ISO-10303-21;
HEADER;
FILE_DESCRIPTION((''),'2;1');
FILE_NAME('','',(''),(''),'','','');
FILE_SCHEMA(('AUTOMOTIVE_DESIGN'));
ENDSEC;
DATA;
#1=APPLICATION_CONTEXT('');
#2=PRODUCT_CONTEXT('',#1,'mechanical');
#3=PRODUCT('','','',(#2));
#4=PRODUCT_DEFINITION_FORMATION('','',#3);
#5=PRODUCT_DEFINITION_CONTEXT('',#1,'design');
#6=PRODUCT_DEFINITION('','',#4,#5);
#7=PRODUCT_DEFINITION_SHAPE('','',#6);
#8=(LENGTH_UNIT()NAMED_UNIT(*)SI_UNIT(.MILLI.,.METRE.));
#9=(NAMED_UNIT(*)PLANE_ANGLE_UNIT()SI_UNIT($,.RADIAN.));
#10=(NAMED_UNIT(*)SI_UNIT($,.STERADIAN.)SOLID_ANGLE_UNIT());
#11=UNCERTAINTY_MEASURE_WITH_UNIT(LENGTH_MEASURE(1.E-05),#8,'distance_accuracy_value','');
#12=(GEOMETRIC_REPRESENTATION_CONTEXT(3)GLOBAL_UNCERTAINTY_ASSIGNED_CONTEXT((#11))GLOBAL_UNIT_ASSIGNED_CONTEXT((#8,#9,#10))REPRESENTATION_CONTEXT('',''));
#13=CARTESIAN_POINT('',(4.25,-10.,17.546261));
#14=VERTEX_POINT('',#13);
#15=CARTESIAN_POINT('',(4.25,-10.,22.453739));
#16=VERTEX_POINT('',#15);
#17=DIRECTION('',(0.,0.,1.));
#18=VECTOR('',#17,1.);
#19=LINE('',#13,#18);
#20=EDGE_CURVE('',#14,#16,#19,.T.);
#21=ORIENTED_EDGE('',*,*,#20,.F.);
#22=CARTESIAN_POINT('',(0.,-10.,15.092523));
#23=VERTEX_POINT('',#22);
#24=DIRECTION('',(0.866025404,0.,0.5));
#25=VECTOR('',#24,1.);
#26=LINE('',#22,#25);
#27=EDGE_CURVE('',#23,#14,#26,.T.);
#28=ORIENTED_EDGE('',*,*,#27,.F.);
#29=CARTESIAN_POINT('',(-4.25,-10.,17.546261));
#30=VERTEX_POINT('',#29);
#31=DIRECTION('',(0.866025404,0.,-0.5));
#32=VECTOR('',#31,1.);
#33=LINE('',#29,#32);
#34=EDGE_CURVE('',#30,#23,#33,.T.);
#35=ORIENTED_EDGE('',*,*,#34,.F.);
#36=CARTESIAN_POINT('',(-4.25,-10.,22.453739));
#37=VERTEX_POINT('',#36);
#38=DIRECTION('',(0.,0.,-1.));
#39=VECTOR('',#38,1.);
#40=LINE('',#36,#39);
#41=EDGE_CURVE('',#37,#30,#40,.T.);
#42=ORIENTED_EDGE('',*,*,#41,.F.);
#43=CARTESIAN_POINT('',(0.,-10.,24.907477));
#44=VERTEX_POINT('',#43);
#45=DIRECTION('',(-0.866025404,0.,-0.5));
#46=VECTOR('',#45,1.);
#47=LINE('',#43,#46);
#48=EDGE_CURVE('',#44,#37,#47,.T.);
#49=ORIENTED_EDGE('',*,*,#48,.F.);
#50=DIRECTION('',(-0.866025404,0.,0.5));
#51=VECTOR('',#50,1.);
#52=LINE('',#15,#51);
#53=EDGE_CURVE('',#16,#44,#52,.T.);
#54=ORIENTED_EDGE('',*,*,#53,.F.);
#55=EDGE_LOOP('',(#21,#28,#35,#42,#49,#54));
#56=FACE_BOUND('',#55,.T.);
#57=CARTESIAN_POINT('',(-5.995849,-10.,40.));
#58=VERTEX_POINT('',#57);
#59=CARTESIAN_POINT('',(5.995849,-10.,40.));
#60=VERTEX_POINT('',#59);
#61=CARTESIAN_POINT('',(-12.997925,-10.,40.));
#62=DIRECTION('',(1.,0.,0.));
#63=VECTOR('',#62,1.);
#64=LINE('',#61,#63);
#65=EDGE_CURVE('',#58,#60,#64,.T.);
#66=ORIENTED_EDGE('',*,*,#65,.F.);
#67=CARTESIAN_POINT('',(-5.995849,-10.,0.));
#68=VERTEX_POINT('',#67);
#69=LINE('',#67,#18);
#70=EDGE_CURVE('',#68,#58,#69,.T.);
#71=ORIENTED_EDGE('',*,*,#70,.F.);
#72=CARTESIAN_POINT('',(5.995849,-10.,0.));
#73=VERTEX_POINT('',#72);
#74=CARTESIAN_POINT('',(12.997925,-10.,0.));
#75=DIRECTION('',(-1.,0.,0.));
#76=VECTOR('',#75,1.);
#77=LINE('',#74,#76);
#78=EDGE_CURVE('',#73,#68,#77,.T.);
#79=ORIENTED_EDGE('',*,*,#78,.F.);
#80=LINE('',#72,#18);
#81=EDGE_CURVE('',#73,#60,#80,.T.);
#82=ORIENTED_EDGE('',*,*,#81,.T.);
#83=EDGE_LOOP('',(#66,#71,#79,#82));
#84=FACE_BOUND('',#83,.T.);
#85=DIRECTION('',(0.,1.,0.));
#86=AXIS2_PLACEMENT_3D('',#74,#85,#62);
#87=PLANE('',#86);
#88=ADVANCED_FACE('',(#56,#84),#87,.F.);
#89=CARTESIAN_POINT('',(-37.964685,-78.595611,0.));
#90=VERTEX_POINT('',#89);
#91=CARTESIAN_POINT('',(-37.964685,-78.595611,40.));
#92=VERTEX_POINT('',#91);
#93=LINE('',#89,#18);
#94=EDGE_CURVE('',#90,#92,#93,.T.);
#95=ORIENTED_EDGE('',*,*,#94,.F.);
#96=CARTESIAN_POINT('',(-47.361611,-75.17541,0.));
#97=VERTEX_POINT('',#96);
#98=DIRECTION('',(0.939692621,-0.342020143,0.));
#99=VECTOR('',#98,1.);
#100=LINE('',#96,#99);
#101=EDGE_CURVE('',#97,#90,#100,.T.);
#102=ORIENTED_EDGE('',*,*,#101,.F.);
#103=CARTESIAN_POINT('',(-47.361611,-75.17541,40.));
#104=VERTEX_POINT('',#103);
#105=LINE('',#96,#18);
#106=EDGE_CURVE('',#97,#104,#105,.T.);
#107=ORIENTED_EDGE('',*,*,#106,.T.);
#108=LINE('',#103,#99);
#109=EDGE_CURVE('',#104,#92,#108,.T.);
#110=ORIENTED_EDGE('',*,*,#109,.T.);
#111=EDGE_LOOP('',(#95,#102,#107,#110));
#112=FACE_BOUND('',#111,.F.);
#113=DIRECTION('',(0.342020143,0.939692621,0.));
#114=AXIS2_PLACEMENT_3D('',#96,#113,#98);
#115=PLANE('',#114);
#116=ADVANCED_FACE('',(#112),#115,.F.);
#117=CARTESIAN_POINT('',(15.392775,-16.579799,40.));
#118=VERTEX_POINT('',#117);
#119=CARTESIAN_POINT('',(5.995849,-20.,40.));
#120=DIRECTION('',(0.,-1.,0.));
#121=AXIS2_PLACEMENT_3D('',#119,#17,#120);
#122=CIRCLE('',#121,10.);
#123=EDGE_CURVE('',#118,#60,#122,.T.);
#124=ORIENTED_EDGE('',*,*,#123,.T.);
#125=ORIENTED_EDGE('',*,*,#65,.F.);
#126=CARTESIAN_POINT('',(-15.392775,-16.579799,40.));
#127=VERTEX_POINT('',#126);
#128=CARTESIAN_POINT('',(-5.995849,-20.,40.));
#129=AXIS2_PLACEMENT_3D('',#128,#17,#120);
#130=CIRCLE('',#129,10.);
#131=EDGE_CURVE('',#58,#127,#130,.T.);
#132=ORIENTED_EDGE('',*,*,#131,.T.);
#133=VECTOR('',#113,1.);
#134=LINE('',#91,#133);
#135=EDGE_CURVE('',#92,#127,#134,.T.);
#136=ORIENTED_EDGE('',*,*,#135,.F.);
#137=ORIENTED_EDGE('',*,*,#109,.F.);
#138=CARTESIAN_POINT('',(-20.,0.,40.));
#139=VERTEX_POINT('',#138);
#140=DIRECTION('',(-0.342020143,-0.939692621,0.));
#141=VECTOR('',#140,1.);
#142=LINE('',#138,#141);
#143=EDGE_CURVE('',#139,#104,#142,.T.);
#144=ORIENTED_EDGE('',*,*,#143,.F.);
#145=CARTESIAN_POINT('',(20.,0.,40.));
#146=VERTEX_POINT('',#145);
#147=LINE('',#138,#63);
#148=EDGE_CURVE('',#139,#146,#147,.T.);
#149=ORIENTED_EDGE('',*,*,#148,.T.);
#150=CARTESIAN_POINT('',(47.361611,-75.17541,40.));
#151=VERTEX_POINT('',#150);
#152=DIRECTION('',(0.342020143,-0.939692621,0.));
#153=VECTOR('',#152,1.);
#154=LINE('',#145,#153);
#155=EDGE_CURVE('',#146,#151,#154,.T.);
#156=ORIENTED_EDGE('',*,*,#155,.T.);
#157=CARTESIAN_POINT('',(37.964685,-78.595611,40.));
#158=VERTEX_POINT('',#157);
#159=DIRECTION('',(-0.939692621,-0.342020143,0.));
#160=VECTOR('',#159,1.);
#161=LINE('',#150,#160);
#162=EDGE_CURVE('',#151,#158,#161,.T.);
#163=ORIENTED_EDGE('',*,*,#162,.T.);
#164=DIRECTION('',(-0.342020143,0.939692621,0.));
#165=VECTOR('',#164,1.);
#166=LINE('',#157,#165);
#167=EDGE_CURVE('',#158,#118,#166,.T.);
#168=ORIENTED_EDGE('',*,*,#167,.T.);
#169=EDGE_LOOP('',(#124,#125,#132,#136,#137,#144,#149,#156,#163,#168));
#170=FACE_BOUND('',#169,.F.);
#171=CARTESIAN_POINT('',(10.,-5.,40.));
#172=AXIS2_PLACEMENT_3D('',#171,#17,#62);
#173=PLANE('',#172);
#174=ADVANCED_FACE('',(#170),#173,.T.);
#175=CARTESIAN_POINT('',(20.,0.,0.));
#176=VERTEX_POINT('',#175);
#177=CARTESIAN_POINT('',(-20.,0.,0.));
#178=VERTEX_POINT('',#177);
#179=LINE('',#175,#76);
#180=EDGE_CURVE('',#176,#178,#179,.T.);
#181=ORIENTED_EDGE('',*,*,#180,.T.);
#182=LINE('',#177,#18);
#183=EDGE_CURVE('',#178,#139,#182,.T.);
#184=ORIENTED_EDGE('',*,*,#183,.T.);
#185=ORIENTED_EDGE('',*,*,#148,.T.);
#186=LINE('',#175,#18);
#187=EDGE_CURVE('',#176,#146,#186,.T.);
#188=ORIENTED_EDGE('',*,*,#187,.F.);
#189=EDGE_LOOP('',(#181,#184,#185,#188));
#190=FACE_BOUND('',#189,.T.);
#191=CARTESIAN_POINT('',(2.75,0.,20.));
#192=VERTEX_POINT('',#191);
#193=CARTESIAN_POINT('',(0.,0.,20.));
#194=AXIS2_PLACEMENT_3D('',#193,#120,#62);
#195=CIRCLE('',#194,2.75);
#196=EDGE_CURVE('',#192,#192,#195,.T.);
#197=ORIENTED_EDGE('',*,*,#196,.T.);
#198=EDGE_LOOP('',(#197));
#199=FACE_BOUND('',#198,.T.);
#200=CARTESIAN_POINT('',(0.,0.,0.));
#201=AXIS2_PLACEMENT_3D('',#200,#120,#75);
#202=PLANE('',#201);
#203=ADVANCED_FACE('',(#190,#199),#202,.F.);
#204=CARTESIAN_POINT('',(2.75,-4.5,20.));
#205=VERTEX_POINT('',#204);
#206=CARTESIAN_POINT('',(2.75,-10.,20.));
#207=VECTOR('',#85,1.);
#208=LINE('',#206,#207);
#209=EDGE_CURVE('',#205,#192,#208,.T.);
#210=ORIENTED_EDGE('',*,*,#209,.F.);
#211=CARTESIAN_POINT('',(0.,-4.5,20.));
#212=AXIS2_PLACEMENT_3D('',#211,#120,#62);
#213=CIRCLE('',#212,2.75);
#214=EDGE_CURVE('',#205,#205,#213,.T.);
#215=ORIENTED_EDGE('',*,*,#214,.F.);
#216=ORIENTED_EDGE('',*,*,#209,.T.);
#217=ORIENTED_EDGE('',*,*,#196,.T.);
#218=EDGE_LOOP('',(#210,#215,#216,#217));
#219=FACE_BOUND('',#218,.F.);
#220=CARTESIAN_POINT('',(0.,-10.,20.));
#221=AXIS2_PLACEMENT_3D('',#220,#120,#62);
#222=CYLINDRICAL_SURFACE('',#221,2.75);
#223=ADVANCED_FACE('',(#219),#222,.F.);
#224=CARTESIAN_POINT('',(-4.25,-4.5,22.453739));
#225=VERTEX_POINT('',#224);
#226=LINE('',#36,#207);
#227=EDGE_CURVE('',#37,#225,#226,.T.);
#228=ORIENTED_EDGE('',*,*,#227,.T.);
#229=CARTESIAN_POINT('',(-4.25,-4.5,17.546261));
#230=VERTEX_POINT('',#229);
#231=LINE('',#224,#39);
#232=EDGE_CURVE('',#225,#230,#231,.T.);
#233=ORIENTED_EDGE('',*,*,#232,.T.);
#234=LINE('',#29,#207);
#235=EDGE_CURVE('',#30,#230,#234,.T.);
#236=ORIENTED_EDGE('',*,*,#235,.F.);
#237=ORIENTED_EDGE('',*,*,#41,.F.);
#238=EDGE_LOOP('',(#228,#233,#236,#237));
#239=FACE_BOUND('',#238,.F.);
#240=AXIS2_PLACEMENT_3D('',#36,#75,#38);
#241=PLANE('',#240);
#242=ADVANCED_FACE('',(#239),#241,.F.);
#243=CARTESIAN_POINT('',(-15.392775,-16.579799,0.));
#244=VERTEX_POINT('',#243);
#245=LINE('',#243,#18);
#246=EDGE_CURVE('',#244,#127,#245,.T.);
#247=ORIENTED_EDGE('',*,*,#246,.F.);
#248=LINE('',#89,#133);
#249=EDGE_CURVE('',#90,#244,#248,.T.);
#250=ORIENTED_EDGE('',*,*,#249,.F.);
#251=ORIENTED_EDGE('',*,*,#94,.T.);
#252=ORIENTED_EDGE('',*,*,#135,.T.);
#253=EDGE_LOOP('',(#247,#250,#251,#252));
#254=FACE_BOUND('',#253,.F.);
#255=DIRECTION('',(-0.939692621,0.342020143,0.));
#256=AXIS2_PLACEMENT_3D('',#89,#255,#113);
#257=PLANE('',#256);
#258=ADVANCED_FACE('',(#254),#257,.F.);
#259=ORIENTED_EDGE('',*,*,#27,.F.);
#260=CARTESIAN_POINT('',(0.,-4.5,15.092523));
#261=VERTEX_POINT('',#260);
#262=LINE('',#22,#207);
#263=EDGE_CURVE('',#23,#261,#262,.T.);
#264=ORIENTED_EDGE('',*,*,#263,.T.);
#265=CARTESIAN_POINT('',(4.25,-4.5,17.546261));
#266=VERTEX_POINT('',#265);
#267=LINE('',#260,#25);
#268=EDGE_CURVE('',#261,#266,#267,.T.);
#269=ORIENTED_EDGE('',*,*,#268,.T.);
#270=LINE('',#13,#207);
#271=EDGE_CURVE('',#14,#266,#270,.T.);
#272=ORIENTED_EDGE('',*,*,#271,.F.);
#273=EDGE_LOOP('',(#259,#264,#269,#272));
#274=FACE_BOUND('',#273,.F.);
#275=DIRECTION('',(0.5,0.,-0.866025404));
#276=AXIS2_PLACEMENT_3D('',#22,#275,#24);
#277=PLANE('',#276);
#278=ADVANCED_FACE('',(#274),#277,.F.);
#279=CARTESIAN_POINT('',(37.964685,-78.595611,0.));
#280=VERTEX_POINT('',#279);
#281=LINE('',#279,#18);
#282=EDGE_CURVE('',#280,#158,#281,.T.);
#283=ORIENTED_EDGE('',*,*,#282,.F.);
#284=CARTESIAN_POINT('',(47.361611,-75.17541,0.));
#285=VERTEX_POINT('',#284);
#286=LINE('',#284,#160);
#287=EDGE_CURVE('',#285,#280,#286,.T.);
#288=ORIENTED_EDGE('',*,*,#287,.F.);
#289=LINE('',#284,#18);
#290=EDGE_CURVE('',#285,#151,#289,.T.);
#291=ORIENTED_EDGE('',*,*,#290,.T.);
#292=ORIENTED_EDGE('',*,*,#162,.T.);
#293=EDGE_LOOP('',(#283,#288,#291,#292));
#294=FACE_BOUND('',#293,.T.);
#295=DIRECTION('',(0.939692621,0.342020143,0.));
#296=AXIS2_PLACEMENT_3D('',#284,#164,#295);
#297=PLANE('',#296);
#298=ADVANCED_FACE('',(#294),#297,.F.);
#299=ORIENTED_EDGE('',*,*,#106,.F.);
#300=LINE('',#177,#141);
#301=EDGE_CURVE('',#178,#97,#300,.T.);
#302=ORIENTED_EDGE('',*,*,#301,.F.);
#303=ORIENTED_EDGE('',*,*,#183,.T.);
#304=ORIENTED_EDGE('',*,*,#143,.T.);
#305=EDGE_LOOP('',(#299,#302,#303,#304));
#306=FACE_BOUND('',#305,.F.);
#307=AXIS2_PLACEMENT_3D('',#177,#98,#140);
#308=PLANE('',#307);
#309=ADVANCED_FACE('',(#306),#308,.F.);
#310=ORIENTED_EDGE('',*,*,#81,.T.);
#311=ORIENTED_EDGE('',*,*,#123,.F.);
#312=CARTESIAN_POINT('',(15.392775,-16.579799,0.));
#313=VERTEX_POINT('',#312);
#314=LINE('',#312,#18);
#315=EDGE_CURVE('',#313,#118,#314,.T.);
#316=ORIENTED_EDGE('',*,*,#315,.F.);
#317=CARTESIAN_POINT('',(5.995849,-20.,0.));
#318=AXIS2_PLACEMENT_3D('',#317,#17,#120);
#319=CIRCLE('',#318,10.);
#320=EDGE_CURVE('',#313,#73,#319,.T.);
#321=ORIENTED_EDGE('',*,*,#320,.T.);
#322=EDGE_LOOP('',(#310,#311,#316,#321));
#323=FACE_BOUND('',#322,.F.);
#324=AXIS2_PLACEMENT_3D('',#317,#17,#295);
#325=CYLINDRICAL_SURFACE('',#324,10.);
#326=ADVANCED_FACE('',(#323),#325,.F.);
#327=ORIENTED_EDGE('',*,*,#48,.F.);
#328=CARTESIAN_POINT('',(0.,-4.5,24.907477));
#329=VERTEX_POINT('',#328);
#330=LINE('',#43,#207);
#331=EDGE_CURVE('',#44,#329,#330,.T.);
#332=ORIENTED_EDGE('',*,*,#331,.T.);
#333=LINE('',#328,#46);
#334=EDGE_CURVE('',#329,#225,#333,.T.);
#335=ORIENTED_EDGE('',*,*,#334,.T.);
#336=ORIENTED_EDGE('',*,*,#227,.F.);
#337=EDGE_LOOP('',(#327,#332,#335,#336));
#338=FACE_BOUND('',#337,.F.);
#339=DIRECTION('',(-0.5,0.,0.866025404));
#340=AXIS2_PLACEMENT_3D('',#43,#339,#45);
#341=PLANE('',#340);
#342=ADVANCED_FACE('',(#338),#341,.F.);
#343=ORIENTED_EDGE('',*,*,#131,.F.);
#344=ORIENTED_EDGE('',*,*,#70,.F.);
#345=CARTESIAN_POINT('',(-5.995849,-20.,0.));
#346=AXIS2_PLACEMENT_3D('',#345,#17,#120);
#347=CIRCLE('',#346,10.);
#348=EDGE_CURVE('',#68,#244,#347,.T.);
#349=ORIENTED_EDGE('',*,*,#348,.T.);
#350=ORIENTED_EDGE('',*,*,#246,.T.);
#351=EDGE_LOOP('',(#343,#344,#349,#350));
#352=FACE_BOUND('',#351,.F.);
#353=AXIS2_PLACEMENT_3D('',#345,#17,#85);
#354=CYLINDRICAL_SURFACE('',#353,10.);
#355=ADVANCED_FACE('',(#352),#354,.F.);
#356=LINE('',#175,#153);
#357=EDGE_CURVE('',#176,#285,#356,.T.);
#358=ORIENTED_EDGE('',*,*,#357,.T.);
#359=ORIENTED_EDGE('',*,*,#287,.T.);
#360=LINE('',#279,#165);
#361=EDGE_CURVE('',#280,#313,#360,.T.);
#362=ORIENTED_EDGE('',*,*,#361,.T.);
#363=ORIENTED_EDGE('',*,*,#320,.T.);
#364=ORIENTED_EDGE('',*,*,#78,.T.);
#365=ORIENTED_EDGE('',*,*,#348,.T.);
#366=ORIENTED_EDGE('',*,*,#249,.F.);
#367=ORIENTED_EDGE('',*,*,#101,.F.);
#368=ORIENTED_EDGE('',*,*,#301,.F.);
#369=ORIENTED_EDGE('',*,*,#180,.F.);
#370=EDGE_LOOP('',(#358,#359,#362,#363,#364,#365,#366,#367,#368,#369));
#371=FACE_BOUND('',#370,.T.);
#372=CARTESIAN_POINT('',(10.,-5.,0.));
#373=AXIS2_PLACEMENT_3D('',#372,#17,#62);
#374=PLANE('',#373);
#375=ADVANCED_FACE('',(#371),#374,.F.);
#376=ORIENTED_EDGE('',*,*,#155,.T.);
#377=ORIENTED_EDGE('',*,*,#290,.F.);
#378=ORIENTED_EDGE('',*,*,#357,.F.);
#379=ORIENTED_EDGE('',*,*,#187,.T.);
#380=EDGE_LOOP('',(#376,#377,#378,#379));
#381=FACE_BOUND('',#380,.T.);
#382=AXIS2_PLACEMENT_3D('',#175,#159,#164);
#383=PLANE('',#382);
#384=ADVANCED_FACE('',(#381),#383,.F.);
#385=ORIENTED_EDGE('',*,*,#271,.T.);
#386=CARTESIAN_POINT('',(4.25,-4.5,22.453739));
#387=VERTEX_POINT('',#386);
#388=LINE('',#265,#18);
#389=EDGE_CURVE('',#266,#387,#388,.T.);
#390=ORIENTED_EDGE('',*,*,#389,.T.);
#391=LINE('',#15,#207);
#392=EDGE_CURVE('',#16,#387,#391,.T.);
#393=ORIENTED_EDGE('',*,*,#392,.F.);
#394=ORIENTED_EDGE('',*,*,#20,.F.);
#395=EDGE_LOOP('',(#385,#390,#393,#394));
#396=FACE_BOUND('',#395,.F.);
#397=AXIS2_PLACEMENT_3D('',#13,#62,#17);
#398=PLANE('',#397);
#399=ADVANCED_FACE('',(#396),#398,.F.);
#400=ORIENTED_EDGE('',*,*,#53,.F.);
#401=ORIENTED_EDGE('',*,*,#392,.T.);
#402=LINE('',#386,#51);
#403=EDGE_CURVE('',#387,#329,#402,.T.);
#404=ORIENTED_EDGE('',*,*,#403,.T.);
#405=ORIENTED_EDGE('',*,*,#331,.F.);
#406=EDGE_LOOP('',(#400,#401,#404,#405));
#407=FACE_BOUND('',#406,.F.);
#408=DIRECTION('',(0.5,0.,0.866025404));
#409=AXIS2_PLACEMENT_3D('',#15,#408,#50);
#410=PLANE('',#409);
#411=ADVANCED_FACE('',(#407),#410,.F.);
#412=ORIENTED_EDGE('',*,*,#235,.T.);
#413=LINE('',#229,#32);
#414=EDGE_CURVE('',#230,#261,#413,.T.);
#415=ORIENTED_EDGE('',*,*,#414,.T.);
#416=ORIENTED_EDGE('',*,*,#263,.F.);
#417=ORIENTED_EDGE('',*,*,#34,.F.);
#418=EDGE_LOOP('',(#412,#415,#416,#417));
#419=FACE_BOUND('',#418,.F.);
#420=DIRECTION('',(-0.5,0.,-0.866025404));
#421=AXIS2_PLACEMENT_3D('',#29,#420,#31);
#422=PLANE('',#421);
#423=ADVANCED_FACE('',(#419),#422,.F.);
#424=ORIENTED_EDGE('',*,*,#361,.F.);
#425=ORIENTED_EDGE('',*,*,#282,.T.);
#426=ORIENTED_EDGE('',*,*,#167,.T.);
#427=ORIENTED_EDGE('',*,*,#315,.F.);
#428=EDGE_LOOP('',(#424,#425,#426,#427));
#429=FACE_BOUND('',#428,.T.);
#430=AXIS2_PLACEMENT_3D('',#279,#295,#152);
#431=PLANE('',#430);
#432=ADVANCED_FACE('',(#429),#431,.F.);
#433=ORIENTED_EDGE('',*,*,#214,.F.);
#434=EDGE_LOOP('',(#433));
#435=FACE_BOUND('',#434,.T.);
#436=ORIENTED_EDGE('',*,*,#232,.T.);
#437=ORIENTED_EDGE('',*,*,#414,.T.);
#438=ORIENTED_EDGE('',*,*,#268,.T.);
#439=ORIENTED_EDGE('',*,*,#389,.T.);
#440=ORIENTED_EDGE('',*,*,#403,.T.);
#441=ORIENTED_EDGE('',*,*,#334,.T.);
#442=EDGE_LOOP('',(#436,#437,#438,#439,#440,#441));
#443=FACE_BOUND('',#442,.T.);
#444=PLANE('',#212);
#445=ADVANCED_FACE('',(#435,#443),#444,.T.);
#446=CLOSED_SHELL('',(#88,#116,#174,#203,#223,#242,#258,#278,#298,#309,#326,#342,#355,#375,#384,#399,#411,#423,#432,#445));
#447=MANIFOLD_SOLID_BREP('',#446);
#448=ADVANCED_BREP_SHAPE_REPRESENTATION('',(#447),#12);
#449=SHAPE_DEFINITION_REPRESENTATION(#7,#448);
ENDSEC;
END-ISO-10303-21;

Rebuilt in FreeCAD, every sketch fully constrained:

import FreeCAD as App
import Part
import Sketcher
from FreeCAD import Vector
Q = App.Units.Quantity


def edges_at(feature, points):
    """Names of the edges that pass closest to the given points."""
    edges = feature.Shape.Edges
    near = lambda p: min(range(len(edges)), key=lambda i: edges[i].distToShape(Part.Vertex(*p))[0])
    return sorted({f"Edge{near(p) + 1}" for p in points})

doc = App.newDocument("Part")
body = doc.addObject("PartDesign::Body", "Body")

# Sketch on XY plane
sketch1 = body.newObject("Sketcher::SketchObject", "Sketch")
sketch1.AttachmentSupport = (doc.getObject("XY_Plane"), [""])
sketch1.MapMode = "FlatFace"
sketch1.addGeometry([
    Part.LineSegment(Vector(0, 0, 0), Vector(-20, 0, 0)),  # 0
    Part.LineSegment(Vector(-20, 0, 0), Vector(-47, -75, 0)),  # 1
    Part.LineSegment(Vector(-47, -75, 0), Vector(-38, -79, 0)),  # 2
    Part.LineSegment(Vector(-38, -79, 0), Vector(-13, -10, 0)),  # 3
    Part.LineSegment(Vector(-13, -10, 0), Vector(0, -10, 0)),  # 4
    Part.LineSegment(Vector(0, -10, 0), Vector(0, 0, 0)),  # 5
], False)
sketch1.addConstraint([
    Sketcher.Constraint("Coincident", 0, 2, 1, 1),
    Sketcher.Constraint("Coincident", 1, 2, 2, 1),
    Sketcher.Constraint("Coincident", 2, 2, 3, 1),
    Sketcher.Constraint("Coincident", 3, 2, 4, 1),
    Sketcher.Constraint("Coincident", 4, 2, 5, 1),
    Sketcher.Constraint("Coincident", 5, 2, 0, 1),
    Sketcher.Constraint("Horizontal", 0),
    Sketcher.Constraint("Horizontal", 4),
    Sketcher.Constraint("Vertical", 5),
    Sketcher.Constraint("Coincident", 5, 2, -1, 1),
    Sketcher.Constraint("Perpendicular", 1, 2),
    Sketcher.Constraint("Perpendicular", 2, 3),
    Sketcher.Constraint("DistanceX", 0, 2, 0, 1, Q("20 mm")),
    Sketcher.Constraint("DistanceY", 5, 1, 5, 2, Q("10 mm")),
    Sketcher.Constraint("Angle", 1, Q("-110 deg")),
    Sketcher.Constraint("Distance", 1, Q("80 mm")),
    Sketcher.Constraint("Distance", 2, Q("10 mm")),
])
pad1 = body.newObject("PartDesign::Pad", "Pad")
pad1.Profile = sketch1
pad1.Length = 40
body2 = doc.addObject("PartDesign::Body", "Body001")
doc.recompute()

body2.BaseFeature = body
doc.recompute()

mirroring = doc.addObject("Part::Mirroring", "Mirroring")
mirroring.Source = body
mirroring.Base = Vector(0, 0, 0)
mirroring.Normal = Vector(1, 0, 0)
body3 = doc.addObject("PartDesign::Body", "Body002")
body3.BaseFeature = mirroring
boolean = body2.newObject("PartDesign::Boolean", "Boolean")
boolean.Type = "Fuse"
boolean.addObjects([body3])
doc.recompute()

# Sketch on XZ plane
sketch2 = body2.newObject("Sketcher::SketchObject", "Sketch001")
sketch2.AttachmentSupport = (doc.getObject("XZ_Plane001"), [""])
sketch2.MapMode = "FlatFace"
sketch2.AttachmentOffset = App.Placement(Vector(0, 0, 10), App.Rotation())
sketch2.addGeometry(Part.Circle(Vector(0, 20, 0), Vector(0, 0, 1), 2.8), False)
sketch2.addConstraint([
    Sketcher.Constraint("PointOnObject", 0, 3, -2),
    Sketcher.Constraint("Diameter", 0, Q("5.5 mm")),
    Sketcher.Constraint("DistanceY", -1, 1, 0, 3, Q("20 mm")),
])
pocket1 = body2.newObject("PartDesign::Pocket", "Pocket")
pocket1.Profile = sketch2
pocket1.Type = "ThroughAll"

# Sketch on XZ plane
sketch3 = body2.newObject("Sketcher::SketchObject", "Sketch002")
sketch3.AttachmentSupport = (doc.getObject("XZ_Plane001"), [""])
sketch3.MapMode = "FlatFace"
sketch3.AttachmentOffset = App.Placement(Vector(0, 0, 10), App.Rotation())
sketch3.addGeometry([
    Part.LineSegment(Vector(4.2, 22.5, 0), Vector(0, 24.9, 0)),  # 0
    Part.LineSegment(Vector(0, 24.9, 0), Vector(-4.2, 22.5, 0)),  # 1
    Part.LineSegment(Vector(-4.2, 22.5, 0), Vector(-4.2, 17.5, 0)),  # 2
    Part.LineSegment(Vector(-4.2, 17.5, 0), Vector(0, 15.1, 0)),  # 3
    Part.LineSegment(Vector(0, 15.1, 0), Vector(4.2, 17.5, 0)),  # 4
    Part.LineSegment(Vector(4.2, 17.5, 0), Vector(4.2, 22.5, 0)),  # 5
    Part.Circle(Vector(0, 20, 0), Vector(0, 0, 1), 2.8),  # 6
], False)
sketch3.addConstraint([
    Sketcher.Constraint("Coincident", 0, 2, 1, 1),
    Sketcher.Constraint("Coincident", 1, 2, 2, 1),
    Sketcher.Constraint("Coincident", 2, 2, 3, 1),
    Sketcher.Constraint("Coincident", 3, 2, 4, 1),
    Sketcher.Constraint("Coincident", 4, 2, 5, 1),
    Sketcher.Constraint("Coincident", 5, 2, 0, 1),
    Sketcher.Constraint("Vertical", 2),
    Sketcher.Constraint("Vertical", 5),
    Sketcher.Constraint("Symmetric", 2, 2, 4, 2, -2),
    Sketcher.Constraint("PointOnObject", 6, 3, -2),
    Sketcher.Constraint("PointOnObject", 0, 2, -2),
    Sketcher.Constraint("PointOnObject", 3, 2, -2),
    Sketcher.Constraint("Parallel", 0, 3),
    Sketcher.Constraint("Parallel", 1, 4),
    Sketcher.Constraint("Diameter", 6, Q("5.5 mm")),
    Sketcher.Constraint("Angle", 0, Q("150 deg")),
    Sketcher.Constraint("DistanceY", -1, 1, 6, 3, Q("20 mm")),
    Sketcher.Constraint("DistanceX", 2, 2, 4, 2, Q("8.5 mm")),
    Sketcher.Constraint("DistanceY", 2, 2, 2, 1, Q("4.907477 mm")),
    Sketcher.Constraint("DistanceY", -1, 1, 1, 2, Q("22.453739 mm")),
])
pocket2 = body2.newObject("PartDesign::Pocket", "Pocket001")
pocket2.Profile = sketch3
pocket2.Length = 5.5
doc.recompute()

fillet = body2.newObject("PartDesign::Fillet", "Fillet")
fillet.Base = (pocket2, edges_at(pocket2, [(-12.998, -10, 20), (12.998, -10, 20)]))
fillet.Radius = 10
mirroring.Visibility = False

doc.recompute()
